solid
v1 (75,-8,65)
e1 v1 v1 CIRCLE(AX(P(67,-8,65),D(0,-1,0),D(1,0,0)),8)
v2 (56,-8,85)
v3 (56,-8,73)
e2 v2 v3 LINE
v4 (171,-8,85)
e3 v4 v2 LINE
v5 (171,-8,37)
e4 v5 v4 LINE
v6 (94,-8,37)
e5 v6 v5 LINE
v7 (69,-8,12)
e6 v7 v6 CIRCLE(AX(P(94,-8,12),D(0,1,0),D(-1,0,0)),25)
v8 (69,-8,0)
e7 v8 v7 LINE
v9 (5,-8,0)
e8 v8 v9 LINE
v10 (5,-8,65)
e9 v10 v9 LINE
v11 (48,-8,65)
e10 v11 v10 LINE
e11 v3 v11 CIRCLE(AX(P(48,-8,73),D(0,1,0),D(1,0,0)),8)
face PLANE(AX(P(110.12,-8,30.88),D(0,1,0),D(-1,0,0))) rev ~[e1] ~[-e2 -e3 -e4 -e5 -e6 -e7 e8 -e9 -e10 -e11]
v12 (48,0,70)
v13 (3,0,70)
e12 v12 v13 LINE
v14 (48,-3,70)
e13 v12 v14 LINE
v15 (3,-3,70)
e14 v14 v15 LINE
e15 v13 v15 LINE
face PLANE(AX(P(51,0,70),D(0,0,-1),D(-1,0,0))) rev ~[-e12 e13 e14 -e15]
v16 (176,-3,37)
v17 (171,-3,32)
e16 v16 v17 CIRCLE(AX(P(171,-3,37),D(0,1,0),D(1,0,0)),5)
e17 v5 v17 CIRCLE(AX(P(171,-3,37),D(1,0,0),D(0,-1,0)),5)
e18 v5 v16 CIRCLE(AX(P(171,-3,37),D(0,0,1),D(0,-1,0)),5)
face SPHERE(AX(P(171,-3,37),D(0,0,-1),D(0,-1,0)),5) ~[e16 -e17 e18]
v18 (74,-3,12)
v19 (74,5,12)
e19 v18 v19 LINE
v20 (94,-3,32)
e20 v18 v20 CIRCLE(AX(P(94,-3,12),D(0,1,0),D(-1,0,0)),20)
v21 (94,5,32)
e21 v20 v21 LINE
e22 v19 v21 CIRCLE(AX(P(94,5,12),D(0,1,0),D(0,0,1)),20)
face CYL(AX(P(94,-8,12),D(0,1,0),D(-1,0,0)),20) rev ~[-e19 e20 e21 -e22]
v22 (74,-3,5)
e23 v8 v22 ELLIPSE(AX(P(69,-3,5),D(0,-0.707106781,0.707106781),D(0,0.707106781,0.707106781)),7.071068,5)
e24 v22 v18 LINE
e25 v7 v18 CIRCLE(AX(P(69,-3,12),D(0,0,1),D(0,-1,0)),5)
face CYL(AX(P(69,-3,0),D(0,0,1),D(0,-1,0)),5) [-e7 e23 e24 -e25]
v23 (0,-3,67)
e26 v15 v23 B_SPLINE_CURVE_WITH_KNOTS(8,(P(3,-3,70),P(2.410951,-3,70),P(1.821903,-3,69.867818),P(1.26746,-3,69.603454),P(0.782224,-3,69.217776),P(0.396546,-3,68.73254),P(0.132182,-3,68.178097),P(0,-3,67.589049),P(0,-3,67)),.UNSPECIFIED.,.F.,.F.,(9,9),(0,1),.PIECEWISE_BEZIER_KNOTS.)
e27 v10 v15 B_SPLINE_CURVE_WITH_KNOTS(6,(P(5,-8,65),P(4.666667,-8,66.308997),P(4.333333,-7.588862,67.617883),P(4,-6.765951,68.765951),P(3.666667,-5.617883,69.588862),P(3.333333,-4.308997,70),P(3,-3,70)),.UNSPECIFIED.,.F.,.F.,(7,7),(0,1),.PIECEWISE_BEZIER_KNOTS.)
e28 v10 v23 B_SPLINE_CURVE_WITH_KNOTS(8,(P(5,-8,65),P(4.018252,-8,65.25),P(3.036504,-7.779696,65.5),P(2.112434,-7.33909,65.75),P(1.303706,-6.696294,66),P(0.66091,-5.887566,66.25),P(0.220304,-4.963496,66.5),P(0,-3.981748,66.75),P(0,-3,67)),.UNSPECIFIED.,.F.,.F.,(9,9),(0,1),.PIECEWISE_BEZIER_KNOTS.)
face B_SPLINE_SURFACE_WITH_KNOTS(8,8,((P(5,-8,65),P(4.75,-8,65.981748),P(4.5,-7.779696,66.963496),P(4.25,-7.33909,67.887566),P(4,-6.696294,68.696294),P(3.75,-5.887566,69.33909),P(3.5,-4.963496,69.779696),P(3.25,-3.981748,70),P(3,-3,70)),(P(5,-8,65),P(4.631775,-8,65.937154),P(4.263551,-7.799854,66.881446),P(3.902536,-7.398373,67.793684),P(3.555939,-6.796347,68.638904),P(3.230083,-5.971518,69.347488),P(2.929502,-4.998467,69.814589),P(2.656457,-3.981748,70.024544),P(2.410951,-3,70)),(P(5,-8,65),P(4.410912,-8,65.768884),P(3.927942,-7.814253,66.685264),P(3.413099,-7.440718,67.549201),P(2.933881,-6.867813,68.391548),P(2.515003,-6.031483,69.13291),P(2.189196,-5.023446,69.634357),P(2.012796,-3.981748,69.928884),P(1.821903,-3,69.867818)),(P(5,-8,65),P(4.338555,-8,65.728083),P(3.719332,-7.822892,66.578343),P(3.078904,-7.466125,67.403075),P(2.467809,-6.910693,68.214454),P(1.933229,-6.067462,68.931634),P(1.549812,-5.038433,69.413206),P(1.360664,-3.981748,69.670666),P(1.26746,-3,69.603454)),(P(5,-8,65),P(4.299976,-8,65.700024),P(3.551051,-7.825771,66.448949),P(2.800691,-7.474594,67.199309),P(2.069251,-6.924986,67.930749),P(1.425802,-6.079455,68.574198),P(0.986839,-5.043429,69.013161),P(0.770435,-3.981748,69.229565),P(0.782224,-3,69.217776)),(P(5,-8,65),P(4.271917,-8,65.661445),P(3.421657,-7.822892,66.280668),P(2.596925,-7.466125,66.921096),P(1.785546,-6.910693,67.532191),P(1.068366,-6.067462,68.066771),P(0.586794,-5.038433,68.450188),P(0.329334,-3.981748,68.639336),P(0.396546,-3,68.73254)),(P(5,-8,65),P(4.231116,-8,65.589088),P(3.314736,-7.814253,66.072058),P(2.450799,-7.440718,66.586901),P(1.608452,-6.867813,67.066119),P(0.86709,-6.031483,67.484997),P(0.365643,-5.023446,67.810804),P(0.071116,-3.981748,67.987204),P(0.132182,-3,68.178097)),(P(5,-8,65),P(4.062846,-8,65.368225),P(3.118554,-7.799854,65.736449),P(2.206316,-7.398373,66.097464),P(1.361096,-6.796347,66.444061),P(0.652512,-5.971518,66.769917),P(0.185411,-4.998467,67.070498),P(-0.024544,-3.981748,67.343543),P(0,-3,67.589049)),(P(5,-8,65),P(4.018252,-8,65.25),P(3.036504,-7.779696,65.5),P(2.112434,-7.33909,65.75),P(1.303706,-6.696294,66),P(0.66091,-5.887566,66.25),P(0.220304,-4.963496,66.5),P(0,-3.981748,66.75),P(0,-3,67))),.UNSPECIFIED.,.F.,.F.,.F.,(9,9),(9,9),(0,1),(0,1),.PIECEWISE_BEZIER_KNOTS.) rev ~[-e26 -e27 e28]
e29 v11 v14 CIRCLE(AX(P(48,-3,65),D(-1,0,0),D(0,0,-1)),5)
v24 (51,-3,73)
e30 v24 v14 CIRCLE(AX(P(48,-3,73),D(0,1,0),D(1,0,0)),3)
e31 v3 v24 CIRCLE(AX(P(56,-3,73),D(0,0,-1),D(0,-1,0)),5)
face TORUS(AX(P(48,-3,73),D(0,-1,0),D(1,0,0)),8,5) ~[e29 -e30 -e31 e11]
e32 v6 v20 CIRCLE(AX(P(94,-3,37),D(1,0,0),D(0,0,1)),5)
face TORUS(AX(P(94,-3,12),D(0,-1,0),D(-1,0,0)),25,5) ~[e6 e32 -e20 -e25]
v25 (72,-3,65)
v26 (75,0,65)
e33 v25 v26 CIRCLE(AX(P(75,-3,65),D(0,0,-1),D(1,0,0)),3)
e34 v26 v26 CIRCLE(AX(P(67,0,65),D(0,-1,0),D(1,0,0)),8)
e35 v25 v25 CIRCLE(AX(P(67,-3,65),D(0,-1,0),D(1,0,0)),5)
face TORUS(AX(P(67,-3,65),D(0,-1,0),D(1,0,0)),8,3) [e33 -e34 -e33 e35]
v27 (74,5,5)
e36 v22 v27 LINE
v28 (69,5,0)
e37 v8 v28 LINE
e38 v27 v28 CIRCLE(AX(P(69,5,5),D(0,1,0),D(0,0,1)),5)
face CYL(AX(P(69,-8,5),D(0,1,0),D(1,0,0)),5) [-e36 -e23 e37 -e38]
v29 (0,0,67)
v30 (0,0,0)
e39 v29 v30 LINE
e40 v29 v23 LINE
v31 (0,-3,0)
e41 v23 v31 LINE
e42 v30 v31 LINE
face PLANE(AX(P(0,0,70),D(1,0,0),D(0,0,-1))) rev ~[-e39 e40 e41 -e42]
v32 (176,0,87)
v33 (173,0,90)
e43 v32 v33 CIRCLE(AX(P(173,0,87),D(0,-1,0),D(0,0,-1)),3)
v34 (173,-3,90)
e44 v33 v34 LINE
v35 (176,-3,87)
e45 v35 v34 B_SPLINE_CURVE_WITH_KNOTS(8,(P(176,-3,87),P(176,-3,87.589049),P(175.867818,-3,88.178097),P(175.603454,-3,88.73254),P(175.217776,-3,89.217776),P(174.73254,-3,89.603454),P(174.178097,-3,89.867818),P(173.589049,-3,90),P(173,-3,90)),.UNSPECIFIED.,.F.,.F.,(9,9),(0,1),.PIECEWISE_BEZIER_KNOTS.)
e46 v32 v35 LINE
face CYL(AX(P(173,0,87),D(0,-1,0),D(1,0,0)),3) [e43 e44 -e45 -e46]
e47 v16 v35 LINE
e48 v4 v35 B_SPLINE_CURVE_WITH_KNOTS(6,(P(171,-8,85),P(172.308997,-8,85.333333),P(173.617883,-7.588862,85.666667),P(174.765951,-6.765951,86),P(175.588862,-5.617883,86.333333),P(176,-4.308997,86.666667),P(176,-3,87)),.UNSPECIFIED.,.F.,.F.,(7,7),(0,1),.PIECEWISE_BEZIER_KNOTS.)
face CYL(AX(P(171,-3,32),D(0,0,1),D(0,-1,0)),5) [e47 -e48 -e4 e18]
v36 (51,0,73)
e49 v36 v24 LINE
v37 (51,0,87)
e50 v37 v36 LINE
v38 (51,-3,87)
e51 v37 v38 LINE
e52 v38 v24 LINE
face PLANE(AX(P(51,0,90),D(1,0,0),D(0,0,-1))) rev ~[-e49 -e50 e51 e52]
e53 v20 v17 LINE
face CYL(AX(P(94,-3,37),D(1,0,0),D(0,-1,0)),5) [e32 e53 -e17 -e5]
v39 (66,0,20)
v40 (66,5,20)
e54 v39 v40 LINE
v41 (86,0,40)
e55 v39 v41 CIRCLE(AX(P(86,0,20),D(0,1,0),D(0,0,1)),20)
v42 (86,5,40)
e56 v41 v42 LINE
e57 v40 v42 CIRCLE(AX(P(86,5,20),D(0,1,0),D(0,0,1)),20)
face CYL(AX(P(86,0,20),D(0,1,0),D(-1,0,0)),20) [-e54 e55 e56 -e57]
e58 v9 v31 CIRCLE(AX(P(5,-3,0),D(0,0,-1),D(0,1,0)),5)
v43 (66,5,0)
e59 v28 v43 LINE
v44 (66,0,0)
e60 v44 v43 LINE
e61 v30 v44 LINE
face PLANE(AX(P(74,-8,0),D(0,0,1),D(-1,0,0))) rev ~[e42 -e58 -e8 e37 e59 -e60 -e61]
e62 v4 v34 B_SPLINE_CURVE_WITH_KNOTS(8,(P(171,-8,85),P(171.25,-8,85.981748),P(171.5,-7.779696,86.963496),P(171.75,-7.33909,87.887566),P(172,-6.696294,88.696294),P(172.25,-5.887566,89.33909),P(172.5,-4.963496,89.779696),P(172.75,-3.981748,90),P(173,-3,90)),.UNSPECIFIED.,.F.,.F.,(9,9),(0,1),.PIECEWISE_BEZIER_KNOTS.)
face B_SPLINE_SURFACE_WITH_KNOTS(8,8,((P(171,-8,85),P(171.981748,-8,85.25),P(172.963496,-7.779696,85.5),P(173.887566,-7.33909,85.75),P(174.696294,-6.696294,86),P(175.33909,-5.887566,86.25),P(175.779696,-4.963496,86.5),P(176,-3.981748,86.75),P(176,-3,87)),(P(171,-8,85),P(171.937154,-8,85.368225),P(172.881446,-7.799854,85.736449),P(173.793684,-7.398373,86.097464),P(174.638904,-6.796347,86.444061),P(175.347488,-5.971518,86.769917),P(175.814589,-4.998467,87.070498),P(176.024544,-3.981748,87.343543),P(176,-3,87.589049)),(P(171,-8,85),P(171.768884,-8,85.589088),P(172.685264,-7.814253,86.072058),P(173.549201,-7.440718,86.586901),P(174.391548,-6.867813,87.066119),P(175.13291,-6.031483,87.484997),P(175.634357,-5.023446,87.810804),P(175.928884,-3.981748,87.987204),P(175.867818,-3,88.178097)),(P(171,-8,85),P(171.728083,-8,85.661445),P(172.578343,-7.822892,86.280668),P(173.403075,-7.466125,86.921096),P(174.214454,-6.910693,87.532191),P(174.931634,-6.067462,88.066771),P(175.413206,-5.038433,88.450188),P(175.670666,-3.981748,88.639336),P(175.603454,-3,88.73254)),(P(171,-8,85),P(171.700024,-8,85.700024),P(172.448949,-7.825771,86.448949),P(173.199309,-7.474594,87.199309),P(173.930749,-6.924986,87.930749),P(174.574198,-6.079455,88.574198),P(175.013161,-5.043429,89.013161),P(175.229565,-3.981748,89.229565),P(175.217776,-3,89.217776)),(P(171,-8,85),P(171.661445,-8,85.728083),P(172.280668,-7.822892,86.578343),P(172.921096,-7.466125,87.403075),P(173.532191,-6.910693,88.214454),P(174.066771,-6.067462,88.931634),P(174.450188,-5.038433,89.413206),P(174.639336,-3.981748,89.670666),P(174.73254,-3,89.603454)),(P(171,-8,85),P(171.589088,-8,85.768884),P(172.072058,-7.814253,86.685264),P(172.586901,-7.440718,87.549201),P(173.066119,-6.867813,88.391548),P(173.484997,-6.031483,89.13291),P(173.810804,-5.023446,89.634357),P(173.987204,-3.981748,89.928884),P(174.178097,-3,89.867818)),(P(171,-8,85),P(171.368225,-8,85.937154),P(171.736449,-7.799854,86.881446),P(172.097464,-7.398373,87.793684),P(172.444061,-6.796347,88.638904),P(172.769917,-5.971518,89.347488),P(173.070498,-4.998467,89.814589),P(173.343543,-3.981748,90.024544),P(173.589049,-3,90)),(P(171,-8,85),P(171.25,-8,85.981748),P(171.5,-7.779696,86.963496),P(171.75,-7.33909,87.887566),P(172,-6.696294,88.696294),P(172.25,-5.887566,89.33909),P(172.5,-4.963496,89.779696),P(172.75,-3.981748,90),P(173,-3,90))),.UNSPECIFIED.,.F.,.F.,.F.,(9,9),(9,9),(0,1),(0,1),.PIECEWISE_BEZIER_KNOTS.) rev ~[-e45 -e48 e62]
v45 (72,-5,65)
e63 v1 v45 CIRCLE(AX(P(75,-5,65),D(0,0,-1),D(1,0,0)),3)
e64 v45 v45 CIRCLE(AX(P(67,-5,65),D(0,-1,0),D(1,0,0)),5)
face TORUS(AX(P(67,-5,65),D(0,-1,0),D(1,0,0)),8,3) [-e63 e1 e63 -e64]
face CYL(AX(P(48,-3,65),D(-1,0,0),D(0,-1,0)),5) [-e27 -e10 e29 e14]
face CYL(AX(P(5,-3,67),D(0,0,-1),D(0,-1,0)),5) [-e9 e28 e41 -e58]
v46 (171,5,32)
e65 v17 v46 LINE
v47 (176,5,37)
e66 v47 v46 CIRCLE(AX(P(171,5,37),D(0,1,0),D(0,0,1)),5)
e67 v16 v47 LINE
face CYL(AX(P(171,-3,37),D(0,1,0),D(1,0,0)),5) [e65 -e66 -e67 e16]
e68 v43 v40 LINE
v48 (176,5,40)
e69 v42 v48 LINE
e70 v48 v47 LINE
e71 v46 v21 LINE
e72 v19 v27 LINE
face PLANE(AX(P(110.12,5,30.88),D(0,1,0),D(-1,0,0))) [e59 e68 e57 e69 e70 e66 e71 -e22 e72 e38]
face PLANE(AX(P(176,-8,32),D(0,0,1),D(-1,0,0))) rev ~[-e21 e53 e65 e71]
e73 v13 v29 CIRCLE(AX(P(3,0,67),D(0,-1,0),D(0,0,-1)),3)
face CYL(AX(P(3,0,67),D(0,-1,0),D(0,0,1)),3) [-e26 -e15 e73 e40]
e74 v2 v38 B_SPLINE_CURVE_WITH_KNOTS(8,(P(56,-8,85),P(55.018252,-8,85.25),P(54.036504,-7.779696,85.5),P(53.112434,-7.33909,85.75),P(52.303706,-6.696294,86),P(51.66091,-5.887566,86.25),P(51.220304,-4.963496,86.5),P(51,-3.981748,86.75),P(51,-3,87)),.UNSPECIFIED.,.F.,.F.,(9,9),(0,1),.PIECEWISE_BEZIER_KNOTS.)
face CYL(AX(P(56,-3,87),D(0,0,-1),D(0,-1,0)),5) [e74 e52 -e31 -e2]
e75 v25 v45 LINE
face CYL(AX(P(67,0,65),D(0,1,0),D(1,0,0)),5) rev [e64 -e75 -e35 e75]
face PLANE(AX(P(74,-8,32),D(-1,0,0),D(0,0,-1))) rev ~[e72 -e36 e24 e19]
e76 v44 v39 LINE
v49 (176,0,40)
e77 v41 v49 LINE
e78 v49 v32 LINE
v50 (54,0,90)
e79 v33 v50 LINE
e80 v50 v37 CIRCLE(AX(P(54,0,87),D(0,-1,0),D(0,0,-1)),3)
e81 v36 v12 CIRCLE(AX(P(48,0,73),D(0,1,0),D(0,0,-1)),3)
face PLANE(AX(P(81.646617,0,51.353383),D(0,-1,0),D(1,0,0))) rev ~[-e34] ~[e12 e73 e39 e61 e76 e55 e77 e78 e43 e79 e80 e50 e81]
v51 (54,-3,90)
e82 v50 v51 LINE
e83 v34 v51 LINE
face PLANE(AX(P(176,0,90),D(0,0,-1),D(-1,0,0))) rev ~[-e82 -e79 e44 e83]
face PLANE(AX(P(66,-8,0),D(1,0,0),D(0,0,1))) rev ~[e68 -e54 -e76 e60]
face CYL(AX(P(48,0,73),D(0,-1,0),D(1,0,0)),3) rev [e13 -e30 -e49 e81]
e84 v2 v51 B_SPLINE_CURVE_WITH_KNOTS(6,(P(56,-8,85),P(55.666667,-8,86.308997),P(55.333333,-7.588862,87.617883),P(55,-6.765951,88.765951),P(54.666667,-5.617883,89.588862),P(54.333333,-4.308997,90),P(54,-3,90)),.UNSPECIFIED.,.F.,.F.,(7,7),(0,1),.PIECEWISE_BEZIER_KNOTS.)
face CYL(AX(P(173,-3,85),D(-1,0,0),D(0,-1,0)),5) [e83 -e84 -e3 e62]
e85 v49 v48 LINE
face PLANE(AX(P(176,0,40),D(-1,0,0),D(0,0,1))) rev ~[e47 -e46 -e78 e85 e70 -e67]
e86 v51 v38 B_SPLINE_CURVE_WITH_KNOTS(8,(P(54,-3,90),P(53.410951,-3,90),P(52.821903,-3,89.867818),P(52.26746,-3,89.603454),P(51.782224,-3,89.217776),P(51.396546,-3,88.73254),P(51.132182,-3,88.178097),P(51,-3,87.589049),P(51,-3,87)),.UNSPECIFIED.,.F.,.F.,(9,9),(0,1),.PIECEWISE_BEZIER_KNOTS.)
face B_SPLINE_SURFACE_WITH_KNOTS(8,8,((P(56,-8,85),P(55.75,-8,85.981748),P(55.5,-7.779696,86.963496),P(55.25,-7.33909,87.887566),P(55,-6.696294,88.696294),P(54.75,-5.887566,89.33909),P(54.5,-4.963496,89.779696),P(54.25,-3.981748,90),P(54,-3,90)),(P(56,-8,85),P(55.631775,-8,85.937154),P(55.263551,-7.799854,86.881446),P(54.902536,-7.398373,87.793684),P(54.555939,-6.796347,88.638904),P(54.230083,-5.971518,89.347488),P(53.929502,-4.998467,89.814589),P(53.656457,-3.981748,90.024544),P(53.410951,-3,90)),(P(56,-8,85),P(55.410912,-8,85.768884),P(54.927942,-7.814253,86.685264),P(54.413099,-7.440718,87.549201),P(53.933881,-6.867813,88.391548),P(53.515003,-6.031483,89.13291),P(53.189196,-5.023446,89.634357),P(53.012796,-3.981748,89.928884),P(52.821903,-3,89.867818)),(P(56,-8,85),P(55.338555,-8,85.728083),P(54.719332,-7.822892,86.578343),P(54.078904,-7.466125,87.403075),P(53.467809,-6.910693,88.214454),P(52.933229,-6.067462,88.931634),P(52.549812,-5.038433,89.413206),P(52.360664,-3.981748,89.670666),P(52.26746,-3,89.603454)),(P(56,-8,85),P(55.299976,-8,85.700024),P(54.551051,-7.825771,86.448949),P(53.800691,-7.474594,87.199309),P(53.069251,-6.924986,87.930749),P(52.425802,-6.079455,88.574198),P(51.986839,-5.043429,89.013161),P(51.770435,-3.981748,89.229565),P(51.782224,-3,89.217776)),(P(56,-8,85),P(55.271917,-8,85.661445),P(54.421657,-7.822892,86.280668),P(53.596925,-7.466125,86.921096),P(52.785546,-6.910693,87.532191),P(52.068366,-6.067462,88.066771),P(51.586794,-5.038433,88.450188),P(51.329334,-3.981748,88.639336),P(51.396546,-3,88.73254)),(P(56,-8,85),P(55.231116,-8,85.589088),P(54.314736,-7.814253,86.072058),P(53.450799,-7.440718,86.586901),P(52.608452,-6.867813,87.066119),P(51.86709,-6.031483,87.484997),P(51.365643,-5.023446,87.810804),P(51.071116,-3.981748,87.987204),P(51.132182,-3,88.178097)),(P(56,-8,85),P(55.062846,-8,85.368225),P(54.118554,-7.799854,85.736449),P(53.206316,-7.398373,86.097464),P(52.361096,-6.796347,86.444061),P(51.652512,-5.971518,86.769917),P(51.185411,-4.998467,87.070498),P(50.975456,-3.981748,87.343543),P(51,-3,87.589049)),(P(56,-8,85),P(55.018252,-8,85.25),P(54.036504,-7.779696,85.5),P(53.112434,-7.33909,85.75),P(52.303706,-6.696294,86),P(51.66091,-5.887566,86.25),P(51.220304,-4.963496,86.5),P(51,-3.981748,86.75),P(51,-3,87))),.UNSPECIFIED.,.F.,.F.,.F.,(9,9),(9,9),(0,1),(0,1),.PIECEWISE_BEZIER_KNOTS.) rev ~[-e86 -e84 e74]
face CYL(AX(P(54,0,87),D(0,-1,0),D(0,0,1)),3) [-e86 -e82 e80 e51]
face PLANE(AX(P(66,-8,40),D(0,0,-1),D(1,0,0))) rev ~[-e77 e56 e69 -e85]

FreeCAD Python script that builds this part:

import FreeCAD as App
import Part
import Sketcher
from FreeCAD import Vector
Q = App.Units.Quantity


def edges_at(feature, points):
    """Names of the edges that pass closest to the given points."""
    edges = feature.Shape.Edges
    near = lambda p: min(range(len(edges)), key=lambda i: edges[i].distToShape(Part.Vertex(*p))[0])
    return sorted({f"Edge{near(p) + 1}" for p in points})


def add_polygon(sketch, points):
    """Adds a closed chain of lines whose ends are joined by coincident constraints."""
    first, n = sketch.GeometryCount, len(points)
    for a, b in zip(points, points[1:] + points[:1]):
        sketch.addGeometry(Part.LineSegment(App.Vector(*a, 0), App.Vector(*b, 0)), False)
    for i in range(n):
        sketch.addConstraint(Sketcher.Constraint("Coincident", first + i, 2, first + (i + 1) % n, 1))

doc = App.newDocument("Part")
body = doc.addObject("PartDesign::Body", "Body")

# Sketch on XZ plane
sketch1 = body.newObject("Sketcher::SketchObject", "Sketch")
sketch1.AttachmentSupport = (doc.getObject("XZ_Plane"), [""])
sketch1.MapMode = "FlatFace"
add_polygon(sketch1, [(0, 0), (66, 0), (66, 40), (176, 40), (176, 90), (51, 90), (51, 70), (0, 70)])  # lines 0-7
sketch1.addGeometry(Part.Circle(Vector(67, 65, 0), Vector(0, 0, 1), 5), False)  # 8
sketch1.addConstraint([
    Sketcher.Constraint("Horizontal", 0),
    Sketcher.Constraint("Vertical", 1),
    Sketcher.Constraint("Horizontal", 2),
    Sketcher.Constraint("Vertical", 3),
    Sketcher.Constraint("Horizontal", 4),
    Sketcher.Constraint("Vertical", 5),
    Sketcher.Constraint("Horizontal", 6),
    Sketcher.Constraint("Vertical", 7),
    Sketcher.Constraint("Coincident", 7, 2, -1, 1),
    Sketcher.Constraint("Diameter", 8, Q("10 mm")),
    Sketcher.Constraint("DistanceX", 0, 1, 0, 2, Q("66 mm")),
    Sketcher.Constraint("DistanceX", 2, 1, 2, 2, Q("110 mm")),
    Sketcher.Constraint("DistanceX", 4, 2, 4, 1, Q("125 mm")),
    Sketcher.Constraint("DistanceY", 1, 1, 1, 2, Q("40 mm")),
    Sketcher.Constraint("DistanceY", 3, 1, 3, 2, Q("50 mm")),
    Sketcher.Constraint("DistanceY", 5, 2, 5, 1, Q("20 mm")),
    Sketcher.Constraint("DistanceX", -1, 1, 8, 3, Q("67 mm")),
    Sketcher.Constraint("DistanceY", -1, 1, 8, 3, Q("65 mm")),
])
pad1 = body.newObject("PartDesign::Pad", "Pad")
pad1.Profile = sketch1
pad1.Length = 8

# Sketch on XZ plane
sketch2 = body.newObject("Sketcher::SketchObject", "Sketch001")
sketch2.AttachmentSupport = (doc.getObject("XZ_Plane"), [""])
sketch2.MapMode = "FlatFace"
sketch2.AttachmentOffset = App.Placement(Vector(0, 0, 8), App.Rotation())
add_polygon(sketch2, [(66, 40), (66, 0), (74, 0), (74, 32), (176, 32), (176, 40)])  # lines 0-5
sketch2.addConstraint([
    Sketcher.Constraint("Vertical", 0),
    Sketcher.Constraint("Horizontal", 1),
    Sketcher.Constraint("Vertical", 2),
    Sketcher.Constraint("Horizontal", 3),
    Sketcher.Constraint("Vertical", 4),
    Sketcher.Constraint("Horizontal", 5),
    Sketcher.Constraint("PointOnObject", 0, 2, -1),
    Sketcher.Constraint("Equal", 1, 4),
    Sketcher.Constraint("DistanceX", 1, 1, 1, 2, Q("8 mm")),
    Sketcher.Constraint("DistanceX", 3, 1, 3, 2, Q("102 mm")),
    Sketcher.Constraint("DistanceY", 0, 2, 0, 1, Q("40 mm")),
    Sketcher.Constraint("DistanceX", -1, 1, 0, 2, Q("66 mm")),
])
pad2 = body.newObject("PartDesign::Pad", "Pad001")
pad2.Profile = sketch2
pad2.Length = 13
pad2.Reversed = True
doc.recompute()

fillet = body.newObject("PartDesign::Fillet", "Fillet")
fillet.Base = (pad2, edges_at(pad2, [
    (176, -4, 90),
    (51, -4, 90),
    (51, -4, 70),
    (0, -4, 70),
]))
fillet.Radius = 3
doc.recompute()

fillet2 = body.newObject("PartDesign::Fillet", "Fillet001")
fillet2.Base = (fillet, edges_at(fillet, [(0, -8, 33.5)]))
fillet2.Radius = 5
doc.recompute()

fillet3 = body.newObject("PartDesign::Fillet", "Fillet002")
fillet3.Base = (fillet2, edges_at(fillet2, [(66, 2.5, 40), (74, -1.5, 32)]))
fillet3.Radius = 20
doc.recompute()

fillet4 = body.newObject("PartDesign::Fillet", "Fillet003")
fillet4.Base = (fillet3, edges_at(fillet3, [(79.858, -8, 26.142), (74, -1.5, 0)]))
fillet4.Radius = 5
doc.recompute()

fillet5 = body.newObject("PartDesign::Fillet", "Fillet004")
fillet5.Base = (fillet4, edges_at(fillet4, [(62, -8, 65), (62, 0, 65)]))
fillet5.Radius = 3

doc.recompute()
